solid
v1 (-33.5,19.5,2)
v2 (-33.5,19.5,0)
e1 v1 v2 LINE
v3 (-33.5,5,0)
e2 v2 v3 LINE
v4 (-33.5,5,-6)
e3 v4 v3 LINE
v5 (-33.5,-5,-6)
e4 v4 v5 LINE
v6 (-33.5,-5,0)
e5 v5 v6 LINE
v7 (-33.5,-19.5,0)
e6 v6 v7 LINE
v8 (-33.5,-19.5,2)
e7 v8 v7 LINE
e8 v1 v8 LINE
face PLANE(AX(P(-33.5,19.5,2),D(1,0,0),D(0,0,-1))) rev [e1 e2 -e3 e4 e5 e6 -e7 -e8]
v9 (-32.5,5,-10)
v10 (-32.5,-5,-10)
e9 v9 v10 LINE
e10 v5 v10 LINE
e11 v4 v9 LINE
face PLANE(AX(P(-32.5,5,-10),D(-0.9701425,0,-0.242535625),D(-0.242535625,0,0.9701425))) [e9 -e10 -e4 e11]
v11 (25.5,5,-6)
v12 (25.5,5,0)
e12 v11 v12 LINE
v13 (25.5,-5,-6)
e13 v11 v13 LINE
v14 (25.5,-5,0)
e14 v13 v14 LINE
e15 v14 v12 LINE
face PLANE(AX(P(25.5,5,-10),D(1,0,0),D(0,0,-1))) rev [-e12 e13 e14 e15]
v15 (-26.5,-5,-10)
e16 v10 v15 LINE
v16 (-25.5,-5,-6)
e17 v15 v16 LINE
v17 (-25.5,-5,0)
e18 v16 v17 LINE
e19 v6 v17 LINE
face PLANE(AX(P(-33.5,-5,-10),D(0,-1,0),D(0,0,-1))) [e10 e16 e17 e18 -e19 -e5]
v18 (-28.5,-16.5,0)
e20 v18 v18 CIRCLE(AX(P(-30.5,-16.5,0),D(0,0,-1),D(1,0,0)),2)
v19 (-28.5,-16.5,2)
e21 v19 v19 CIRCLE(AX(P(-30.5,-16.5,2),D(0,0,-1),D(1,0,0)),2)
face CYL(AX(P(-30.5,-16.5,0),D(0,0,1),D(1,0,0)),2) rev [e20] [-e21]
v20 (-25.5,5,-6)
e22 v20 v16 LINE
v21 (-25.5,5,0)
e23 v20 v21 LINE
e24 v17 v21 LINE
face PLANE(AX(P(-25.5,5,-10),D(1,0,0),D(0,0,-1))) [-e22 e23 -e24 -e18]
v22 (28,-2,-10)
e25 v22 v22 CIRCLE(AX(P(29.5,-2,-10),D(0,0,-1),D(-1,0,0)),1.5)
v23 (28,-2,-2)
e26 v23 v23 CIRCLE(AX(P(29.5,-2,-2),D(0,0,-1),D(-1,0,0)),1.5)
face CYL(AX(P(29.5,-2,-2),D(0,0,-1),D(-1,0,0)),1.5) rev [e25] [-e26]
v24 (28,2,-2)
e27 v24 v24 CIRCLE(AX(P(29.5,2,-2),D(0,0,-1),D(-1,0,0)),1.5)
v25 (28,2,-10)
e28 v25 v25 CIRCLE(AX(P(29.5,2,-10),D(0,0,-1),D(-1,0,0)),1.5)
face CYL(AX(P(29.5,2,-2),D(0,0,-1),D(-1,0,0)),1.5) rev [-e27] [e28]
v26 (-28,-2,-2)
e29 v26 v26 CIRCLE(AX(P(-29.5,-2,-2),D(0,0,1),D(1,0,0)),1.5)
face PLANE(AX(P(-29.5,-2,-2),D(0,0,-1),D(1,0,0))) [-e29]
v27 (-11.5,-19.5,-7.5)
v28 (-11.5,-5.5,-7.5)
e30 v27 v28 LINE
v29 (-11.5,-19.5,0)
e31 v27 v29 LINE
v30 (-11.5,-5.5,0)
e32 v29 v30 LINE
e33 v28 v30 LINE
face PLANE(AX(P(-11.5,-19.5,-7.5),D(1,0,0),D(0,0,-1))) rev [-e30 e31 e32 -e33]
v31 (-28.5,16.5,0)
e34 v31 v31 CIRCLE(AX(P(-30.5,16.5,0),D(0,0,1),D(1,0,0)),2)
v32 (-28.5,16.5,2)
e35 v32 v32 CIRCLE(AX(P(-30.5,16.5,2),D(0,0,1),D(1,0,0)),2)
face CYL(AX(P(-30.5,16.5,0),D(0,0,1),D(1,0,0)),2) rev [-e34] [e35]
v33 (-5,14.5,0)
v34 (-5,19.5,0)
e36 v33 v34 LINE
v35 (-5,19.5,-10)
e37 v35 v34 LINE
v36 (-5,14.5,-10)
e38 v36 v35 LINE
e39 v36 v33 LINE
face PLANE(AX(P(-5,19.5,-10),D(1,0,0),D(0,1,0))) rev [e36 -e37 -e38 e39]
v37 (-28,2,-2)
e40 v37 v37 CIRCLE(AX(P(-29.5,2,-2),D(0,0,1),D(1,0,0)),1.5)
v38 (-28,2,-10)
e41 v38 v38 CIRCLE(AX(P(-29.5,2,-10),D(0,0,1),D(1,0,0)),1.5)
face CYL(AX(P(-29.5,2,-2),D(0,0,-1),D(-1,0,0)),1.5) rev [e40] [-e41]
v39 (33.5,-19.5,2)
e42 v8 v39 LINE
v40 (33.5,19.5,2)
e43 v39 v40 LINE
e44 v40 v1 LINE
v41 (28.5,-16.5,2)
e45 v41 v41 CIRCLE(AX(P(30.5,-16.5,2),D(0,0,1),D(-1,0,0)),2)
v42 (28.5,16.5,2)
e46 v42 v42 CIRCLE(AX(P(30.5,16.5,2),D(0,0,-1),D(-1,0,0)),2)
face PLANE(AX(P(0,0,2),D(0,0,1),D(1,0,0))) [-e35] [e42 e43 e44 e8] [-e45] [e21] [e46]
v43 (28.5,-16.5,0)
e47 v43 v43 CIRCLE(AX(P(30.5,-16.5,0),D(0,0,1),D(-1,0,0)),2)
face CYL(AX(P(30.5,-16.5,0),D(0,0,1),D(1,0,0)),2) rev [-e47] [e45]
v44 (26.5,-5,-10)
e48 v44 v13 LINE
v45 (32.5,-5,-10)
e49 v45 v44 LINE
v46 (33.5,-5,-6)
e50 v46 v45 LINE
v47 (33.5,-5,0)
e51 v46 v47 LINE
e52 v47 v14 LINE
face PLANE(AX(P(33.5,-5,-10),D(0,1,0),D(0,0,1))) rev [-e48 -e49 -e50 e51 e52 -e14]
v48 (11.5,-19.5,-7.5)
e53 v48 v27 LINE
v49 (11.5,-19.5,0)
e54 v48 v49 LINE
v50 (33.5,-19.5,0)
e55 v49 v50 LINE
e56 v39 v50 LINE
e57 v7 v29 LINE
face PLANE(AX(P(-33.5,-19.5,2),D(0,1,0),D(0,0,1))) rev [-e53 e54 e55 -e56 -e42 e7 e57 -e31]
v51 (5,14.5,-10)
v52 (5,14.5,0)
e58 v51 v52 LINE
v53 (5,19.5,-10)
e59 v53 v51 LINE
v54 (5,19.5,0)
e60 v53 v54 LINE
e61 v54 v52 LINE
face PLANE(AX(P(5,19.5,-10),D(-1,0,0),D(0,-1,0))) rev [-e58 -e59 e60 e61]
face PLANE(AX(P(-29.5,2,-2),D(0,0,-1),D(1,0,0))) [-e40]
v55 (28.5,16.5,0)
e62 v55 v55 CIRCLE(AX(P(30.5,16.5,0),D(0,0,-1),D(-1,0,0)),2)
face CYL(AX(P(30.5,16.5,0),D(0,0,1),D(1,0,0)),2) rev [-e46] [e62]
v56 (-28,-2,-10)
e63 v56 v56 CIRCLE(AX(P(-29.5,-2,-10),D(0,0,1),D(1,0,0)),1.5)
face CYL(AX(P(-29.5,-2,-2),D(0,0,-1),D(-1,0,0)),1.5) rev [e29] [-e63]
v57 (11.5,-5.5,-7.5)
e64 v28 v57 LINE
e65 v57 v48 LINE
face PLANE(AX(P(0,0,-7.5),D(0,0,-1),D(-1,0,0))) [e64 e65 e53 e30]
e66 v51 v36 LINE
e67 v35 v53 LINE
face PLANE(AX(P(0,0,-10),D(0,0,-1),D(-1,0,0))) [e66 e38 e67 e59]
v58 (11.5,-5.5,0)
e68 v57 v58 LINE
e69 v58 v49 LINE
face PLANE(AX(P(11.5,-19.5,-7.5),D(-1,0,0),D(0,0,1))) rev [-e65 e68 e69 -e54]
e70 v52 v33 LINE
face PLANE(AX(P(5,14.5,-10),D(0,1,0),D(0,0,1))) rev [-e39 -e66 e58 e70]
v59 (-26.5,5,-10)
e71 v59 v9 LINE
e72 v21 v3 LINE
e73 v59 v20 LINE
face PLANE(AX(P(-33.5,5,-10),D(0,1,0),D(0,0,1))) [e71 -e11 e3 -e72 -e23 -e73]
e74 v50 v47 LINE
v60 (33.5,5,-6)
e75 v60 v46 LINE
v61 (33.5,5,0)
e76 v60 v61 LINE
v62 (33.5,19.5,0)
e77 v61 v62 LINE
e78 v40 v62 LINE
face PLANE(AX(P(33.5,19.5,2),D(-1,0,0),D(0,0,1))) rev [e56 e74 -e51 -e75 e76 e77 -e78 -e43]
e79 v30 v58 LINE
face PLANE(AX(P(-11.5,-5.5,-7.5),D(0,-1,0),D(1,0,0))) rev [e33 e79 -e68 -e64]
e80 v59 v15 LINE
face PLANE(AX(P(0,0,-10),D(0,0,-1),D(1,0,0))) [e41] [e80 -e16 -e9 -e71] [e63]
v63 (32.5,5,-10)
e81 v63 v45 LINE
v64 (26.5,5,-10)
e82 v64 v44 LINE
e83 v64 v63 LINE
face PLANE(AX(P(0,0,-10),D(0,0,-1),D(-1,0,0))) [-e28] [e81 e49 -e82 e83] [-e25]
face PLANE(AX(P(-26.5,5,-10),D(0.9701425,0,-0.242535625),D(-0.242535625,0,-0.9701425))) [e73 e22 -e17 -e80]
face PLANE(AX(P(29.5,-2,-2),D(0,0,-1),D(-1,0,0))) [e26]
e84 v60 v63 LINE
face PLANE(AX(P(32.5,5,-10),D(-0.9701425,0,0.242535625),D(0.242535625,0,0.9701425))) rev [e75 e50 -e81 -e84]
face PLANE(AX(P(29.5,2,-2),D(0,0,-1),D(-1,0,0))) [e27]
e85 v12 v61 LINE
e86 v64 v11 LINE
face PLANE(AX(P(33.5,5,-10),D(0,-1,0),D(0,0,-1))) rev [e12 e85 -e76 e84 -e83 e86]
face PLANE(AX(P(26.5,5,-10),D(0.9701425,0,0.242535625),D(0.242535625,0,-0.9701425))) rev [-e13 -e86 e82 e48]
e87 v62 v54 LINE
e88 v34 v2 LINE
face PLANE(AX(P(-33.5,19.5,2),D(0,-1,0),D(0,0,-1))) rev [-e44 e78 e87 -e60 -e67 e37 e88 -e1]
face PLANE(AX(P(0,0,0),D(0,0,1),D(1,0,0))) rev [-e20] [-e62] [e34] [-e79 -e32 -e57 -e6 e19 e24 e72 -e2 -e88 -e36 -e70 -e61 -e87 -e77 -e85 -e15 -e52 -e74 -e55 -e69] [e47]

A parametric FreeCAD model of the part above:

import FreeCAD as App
import Part
import Sketcher

V = App.Vector


def add_polygon(sketch, points):
    """Adds a closed chain of lines whose ends are joined by coincident constraints."""
    first, n = sketch.GeometryCount, len(points)
    for a, b in zip(points, points[1:] + points[:1]):
        sketch.addGeometry(Part.LineSegment(App.Vector(*a, 0), App.Vector(*b, 0)), False)
    for i in range(n):
        sketch.addConstraint(Sketcher.Constraint("Coincident", first + i, 2, first + (i + 1) % n, 1))

doc = App.newDocument("Part")
body = doc.addObject("PartDesign::Body", "Body")

sketch1 = body.newObject("Sketcher::SketchObject", "Sketch")
sketch1.AttachmentSupport = (doc.getObject("XY_Plane"), [""])
sketch1.MapMode = "FlatFace"
add_polygon(sketch1, [(-34, 20), (-34, -20), (34, -20), (34, 20)])
sketch1.addConstraint(Sketcher.Constraint("Vertical", 0))
sketch1.addConstraint(Sketcher.Constraint("Horizontal", 1))
sketch1.addConstraint(Sketcher.Constraint("Vertical", 2))
sketch1.addConstraint(Sketcher.Constraint("Horizontal", 3))
sketch1.addConstraint(Sketcher.Constraint("Symmetric", 0, 2, 2, 2, -1, 1))
sketch1.addConstraint(Sketcher.Constraint("DistanceX", 1, 1, 1, 2, 67.0))
sketch1.addConstraint(Sketcher.Constraint("DistanceY", 0, 2, 0, 1, 39.0))
pad1 = body.newObject("PartDesign::Pad", "Pad")
pad1.Profile = sketch1
pad1.Length = 2

sketch2 = body.newObject("Sketcher::SketchObject", "Sketch001")
sketch2.AttachmentSupport = (doc.getObject("XY_Plane"), [""])
sketch2.MapMode = "FlatFace"
sketch2.AttachmentOffset = App.Placement(V(0, 0, 2), App.Rotation())
sketch2.addGeometry(Part.Circle(V(-30.5, 16.5, 0), V(0, 0, 1), 2), False)
sketch2.addConstraint(Sketcher.Constraint("Diameter", 0, 4.0))
sketch2.addConstraint(Sketcher.Constraint("DistanceX", 0, 3, -1, 1, 30.5))
sketch2.addConstraint(Sketcher.Constraint("DistanceY", -1, 1, 0, 3, 16.5))
pocket1 = body.newObject("PartDesign::Pocket", "Pocket")
pocket1.Profile = sketch2
pocket1.Length = 2
doc.recompute()

mirrored = body.newObject("PartDesign::Mirrored", "Mirrored")
mirrored.Originals = [pocket1]
mirrored.MirrorPlane = (doc.getObject("YZ_Plane"), [""])
body.Tip = mirrored
doc.recompute()

mirrored2 = body.newObject("PartDesign::Mirrored", "Mirrored001")
mirrored2.Originals = [pocket1]
mirrored2.MirrorPlane = (doc.getObject("XZ_Plane"), [""])
body.Tip = mirrored2

sketch3 = body.newObject("Sketcher::SketchObject", "Sketch002")
sketch3.AttachmentSupport = (doc.getObject("XY_Plane"), [""])
sketch3.MapMode = "FlatFace"
sketch3.AttachmentOffset = App.Placement(V(0, 0, 2), App.Rotation())
sketch3.addGeometry(Part.Circle(V(30.5, -16.5, 0), V(0, 0, 1), 2), False)
sketch3.addConstraint(Sketcher.Constraint("Diameter", 0, 4.0))
sketch3.addConstraint(Sketcher.Constraint("DistanceX", -1, 1, 0, 3, 30.5))
sketch3.addConstraint(Sketcher.Constraint("DistanceY", 0, 3, -1, 1, 16.5))
pocket2 = body.newObject("PartDesign::Pocket", "Pocket001")
pocket2.Profile = sketch3
pocket2.Length = 2

sketch4 = body.newObject("Sketcher::SketchObject", "Sketch003")
sketch4.AttachmentSupport = (doc.getObject("XY_Plane"), [""])
sketch4.MapMode = "FlatFace"
add_polygon(sketch4, [(34, 5), (34, -5), (26, -5), (26, 5)])
sketch4.addConstraint(Sketcher.Constraint("Vertical", 0))
sketch4.addConstraint(Sketcher.Constraint("Horizontal", 1))
sketch4.addConstraint(Sketcher.Constraint("Vertical", 2))
sketch4.addConstraint(Sketcher.Constraint("Horizontal", 3))
sketch4.addConstraint(Sketcher.Constraint("DistanceX", 1, 2, 1, 1, 8.0))
sketch4.addConstraint(Sketcher.Constraint("DistanceY", 0, 2, 0, 1, 10.0))
sketch4.addConstraint(Sketcher.Constraint("DistanceY", 0, 2, -1, 1, 5.0))
sketch4.addConstraint(Sketcher.Constraint("DistanceX", -1, 1, 0, 2, 33.5))
pad2 = body.newObject("PartDesign::Pad", "Pad001")
pad2.Profile = sketch4
pad2.Length = 10
pad2.Reversed = True

sketch5 = body.newObject("Sketcher::SketchObject", "Sketch004")
sketch5.AttachmentSupport = (doc.getObject("XZ_Plane"), [""])
sketch5.MapMode = "FlatFace"
sketch5.AttachmentOffset = App.Placement(V(0, 0, 5), App.Rotation())
add_polygon(sketch5, [(33.5, -6), (32.5, -10), (33.5, -10)])
add_polygon(sketch5, [(25.5, -6), (25.5, -10), (26.5, -10)])
sketch5.addConstraint(Sketcher.Constraint("Horizontal", 1))
sketch5.addConstraint(Sketcher.Constraint("Vertical", 2))
sketch5.addConstraint(Sketcher.Constraint("Vertical", 3))
sketch5.addConstraint(Sketcher.Constraint("Horizontal", 4))
sketch5.addConstraint(Sketcher.Constraint("Horizontal", 1, 2, 3, 2))
sketch5.addConstraint(Sketcher.Constraint("Horizontal", 2, 2, 5, 2))
sketch5.addConstraint(Sketcher.Constraint("Equal", 1, 4))
sketch5.addConstraint(Sketcher.Constraint("DistanceX", 1, 1, 1, 2, 1.0))
sketch5.addConstraint(Sketcher.Constraint("DistanceY", 2, 1, 2, 2, 4.0))
sketch5.addConstraint(Sketcher.Constraint("DistanceY", 0, 2, -1, 1, 10.0))
sketch5.addConstraint(Sketcher.Constraint("DistanceX", 3, 2, 0, 2, 7.0))
sketch5.addConstraint(Sketcher.Constraint("DistanceX", -1, 1, 0, 2, 32.5))
pocket3 = body.newObject("PartDesign::Pocket", "Pocket002")
pocket3.Profile = sketch5
pocket3.Length = 10

sketch6 = body.newObject("Sketcher::SketchObject", "Sketch005")
sketch6.AttachmentSupport = (doc.getObject("XY_Plane"), [""])
sketch6.MapMode = "FlatFace"
sketch6.AttachmentOffset = App.Placement(V(0, 0, -10), App.Rotation())
sketch6.addGeometry(Part.Circle(V(29.5, 2, 0), V(0, 0, 1), 1.5), False)
sketch6.addGeometry(Part.Circle(V(29.5, -2, 0), V(0, 0, 1), 1.5), False)
sketch6.addConstraint(Sketcher.Constraint("Equal", 0, 1))
sketch6.addConstraint(Sketcher.Constraint("Symmetric", 0, 3, 1, 3, -1))
sketch6.addConstraint(Sketcher.Constraint("Diameter", 0, 3.0))
sketch6.addConstraint(Sketcher.Constraint("DistanceY", -1, 1, 0, 3, 2.0))
sketch6.addConstraint(Sketcher.Constraint("DistanceX", -1, 1, 0, 3, 29.5))
pocket4 = body.newObject("PartDesign::Pocket", "Pocket003")
pocket4.Profile = sketch6
pocket4.Length = 8
pocket4.Reversed = True
doc.recompute()

mirrored3 = body.newObject("PartDesign::Mirrored", "Mirrored002")
mirrored3.Originals = [pad2, pocket3, pocket4]
mirrored3.MirrorPlane = (doc.getObject("YZ_Plane"), [""])
body.Tip = mirrored3

sketch7 = body.newObject("Sketcher::SketchObject", "Sketch006")
sketch7.AttachmentSupport = (doc.getObject("XY_Plane"), [""])
sketch7.MapMode = "FlatFace"
add_polygon(sketch7, [(5, 20), (5, 14), (-5, 14), (-5, 20)])
sketch7.addConstraint(Sketcher.Constraint("Vertical", 0))
sketch7.addConstraint(Sketcher.Constraint("Horizontal", 1))
sketch7.addConstraint(Sketcher.Constraint("Vertical", 2))
sketch7.addConstraint(Sketcher.Constraint("Horizontal", 3))
sketch7.addConstraint(Sketcher.Constraint("DistanceX", 1, 2, 1, 1, 10.0))
sketch7.addConstraint(Sketcher.Constraint("DistanceY", 0, 2, 0, 1, 5.0))
sketch7.addConstraint(Sketcher.Constraint("DistanceX", -1, 1, 0, 2, 5.0))
sketch7.addConstraint(Sketcher.Constraint("DistanceY", -1, 1, 0, 2, 14.5))
pad3 = body.newObject("PartDesign::Pad", "Pad002")
pad3.Profile = sketch7
pad3.Length = 10
pad3.Reversed = True

sketch8 = body.newObject("Sketcher::SketchObject", "Sketch007")
sketch8.AttachmentSupport = (doc.getObject("XY_Plane"), [""])
sketch8.MapMode = "FlatFace"
add_polygon(sketch8, [(12, -6), (12, -20), (-12, -20), (-12, -6)])
sketch8.addConstraint(Sketcher.Constraint("Vertical", 0))
sketch8.addConstraint(Sketcher.Constraint("Horizontal", 1))
sketch8.addConstraint(Sketcher.Constraint("Vertical", 2))
sketch8.addConstraint(Sketcher.Constraint("Horizontal", 3))
sketch8.addConstraint(Sketcher.Constraint("DistanceX", 1, 2, 1, 1, 23.0))
sketch8.addConstraint(Sketcher.Constraint("DistanceY", 0, 2, 0, 1, 14.0))
sketch8.addConstraint(Sketcher.Constraint("DistanceX", -1, 1, 0, 2, 11.5))
sketch8.addConstraint(Sketcher.Constraint("DistanceY", 0, 2, -1, 1, 19.5))
pad4 = body.newObject("PartDesign::Pad", "Pad003")
pad4.Profile = sketch8
pad4.Length = 7.5
pad4.Reversed = True

doc.recompute()
